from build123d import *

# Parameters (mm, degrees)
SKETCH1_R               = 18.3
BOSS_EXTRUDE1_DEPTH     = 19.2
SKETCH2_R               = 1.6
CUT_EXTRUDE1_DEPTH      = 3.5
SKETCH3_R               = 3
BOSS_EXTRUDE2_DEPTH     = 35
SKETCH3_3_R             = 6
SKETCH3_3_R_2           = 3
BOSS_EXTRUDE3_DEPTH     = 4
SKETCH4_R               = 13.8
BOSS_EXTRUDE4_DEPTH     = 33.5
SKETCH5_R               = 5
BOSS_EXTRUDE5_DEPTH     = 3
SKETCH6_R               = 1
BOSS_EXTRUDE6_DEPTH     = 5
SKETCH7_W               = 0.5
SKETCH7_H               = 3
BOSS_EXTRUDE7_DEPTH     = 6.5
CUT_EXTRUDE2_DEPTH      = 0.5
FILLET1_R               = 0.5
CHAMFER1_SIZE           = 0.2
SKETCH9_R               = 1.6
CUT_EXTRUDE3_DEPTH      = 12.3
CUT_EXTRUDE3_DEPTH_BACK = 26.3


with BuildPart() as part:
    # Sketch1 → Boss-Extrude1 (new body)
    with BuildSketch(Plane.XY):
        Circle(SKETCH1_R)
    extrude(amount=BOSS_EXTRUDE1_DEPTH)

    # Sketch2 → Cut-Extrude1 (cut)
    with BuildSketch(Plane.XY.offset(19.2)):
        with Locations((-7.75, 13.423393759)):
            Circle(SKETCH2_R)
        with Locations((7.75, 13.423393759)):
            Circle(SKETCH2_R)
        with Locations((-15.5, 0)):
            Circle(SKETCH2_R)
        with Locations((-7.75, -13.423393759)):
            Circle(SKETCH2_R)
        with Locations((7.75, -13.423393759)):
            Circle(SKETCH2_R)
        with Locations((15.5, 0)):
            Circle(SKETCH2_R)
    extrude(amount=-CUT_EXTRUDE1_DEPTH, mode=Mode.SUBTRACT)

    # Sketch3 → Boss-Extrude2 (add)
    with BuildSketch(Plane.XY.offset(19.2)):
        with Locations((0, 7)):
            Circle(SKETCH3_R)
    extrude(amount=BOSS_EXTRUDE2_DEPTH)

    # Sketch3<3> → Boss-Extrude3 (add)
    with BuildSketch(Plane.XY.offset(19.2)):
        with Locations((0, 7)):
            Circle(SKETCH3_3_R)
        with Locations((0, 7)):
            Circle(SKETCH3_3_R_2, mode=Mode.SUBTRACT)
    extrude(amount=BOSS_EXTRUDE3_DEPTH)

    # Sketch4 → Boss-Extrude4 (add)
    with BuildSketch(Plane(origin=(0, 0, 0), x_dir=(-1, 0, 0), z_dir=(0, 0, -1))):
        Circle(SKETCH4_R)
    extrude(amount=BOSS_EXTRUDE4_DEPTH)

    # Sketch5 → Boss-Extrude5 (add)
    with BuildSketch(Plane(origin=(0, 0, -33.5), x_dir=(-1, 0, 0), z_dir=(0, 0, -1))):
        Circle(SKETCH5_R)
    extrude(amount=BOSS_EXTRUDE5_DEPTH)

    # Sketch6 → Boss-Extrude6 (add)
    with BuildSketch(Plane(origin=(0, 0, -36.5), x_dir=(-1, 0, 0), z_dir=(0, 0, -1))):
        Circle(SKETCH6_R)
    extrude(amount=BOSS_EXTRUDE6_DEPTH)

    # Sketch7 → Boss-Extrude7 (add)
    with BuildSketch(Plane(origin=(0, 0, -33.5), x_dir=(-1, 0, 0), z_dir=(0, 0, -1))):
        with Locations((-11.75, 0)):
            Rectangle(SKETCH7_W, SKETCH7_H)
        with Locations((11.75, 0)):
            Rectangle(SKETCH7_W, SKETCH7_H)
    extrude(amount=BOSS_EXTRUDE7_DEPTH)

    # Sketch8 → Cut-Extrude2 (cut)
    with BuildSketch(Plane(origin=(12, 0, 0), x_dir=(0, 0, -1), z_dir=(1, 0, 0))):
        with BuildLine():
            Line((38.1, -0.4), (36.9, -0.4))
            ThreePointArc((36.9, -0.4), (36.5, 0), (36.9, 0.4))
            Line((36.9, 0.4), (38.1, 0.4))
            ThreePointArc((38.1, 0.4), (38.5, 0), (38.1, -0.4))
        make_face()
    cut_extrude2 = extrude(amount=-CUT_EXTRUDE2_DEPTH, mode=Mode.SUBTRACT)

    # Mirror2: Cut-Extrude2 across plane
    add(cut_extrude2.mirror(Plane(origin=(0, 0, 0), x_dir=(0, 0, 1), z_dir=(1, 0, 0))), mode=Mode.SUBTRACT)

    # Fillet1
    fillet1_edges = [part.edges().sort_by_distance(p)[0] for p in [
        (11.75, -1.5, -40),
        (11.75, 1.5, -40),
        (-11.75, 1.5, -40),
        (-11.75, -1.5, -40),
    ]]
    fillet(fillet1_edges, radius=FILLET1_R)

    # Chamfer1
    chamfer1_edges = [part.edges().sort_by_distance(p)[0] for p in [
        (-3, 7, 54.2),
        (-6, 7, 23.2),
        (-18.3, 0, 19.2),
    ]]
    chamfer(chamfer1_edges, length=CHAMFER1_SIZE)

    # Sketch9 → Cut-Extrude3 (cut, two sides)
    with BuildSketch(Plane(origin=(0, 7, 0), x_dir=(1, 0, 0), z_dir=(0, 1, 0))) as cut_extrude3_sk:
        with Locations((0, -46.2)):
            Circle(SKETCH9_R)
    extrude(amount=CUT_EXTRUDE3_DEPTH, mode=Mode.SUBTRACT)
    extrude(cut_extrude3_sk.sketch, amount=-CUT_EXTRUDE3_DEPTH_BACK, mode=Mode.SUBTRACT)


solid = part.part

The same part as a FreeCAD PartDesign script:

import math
import FreeCAD as App
import Part
import Sketcher
Q = App.Units.Quantity


def edges_at(feature, points):
    """Names of the edges that pass closest to the given points."""
    edges = feature.Shape.Edges
    near = lambda p: min(range(len(edges)), key=lambda i: edges[i].distToShape(Part.Vertex(*p))[0])
    return sorted({f"Edge{near(p) + 1}" for p in points})


def add_polygon(sketch, points):
    """Adds a closed chain of lines whose ends are joined by coincident constraints."""
    first, n = sketch.GeometryCount, len(points)
    for a, b in zip(points, points[1:] + points[:1]):
        sketch.addGeometry(Part.LineSegment(App.Vector(*a, 0), App.Vector(*b, 0)), False)
    for i in range(n):
        sketch.addConstraint(Sketcher.Constraint("Coincident", first + i, 2, first + (i + 1) % n, 1))

doc = App.newDocument("Part")
body = doc.addObject("PartDesign::Body", "Body")

# Sketch on XY plane
sketch1 = doc.addObject("Sketcher::SketchObject", "Sketch")
body.addObject(sketch1)
sketch1.AttachmentSupport = (doc.XY_Plane, [""])
sketch1.MapMode = "FlatFace"
sketch1.addGeometry(Part.Circle(App.Vector(0, 0, 0), App.Vector(0, 0, 1), 18), False)
sketch1.addConstraint([
    Sketcher.Constraint("Coincident", 0, 3, -1, 1),
    Sketcher.Constraint("Diameter", 0, Q("36.6 mm")),
])
pad1 = doc.addObject("PartDesign::Pad", "Pad")
body.addObject(pad1)
pad1.Profile = sketch1
pad1.Length = 19.2

# Sketch on XY plane
sketch2 = doc.addObject("Sketcher::SketchObject", "Sketch001")
body.addObject(sketch2)
sketch2.AttachmentSupport = (doc.XY_Plane, [""])
sketch2.MapMode = "FlatFace"
sketch2.AttachmentOffset = App.Placement(App.Vector(0, 0, 19.2), App.Rotation())
sketch2.addGeometry([
    Part.Circle(App.Vector(-7.8, 13.4, 0), App.Vector(0, 0, 1), 1.6),  # 0
    Part.Circle(App.Vector(7.8, 13.4, 0), App.Vector(0, 0, 1), 1.6),  # 1
    Part.Circle(App.Vector(-15.5, 0, 0), App.Vector(0, 0, 1), 1.6),  # 2
    Part.Circle(App.Vector(-7.8, -13.4, 0), App.Vector(0, 0, 1), 1.6),  # 3
    Part.Circle(App.Vector(7.8, -13.4, 0), App.Vector(0, 0, 1), 1.6),  # 4
    Part.Circle(App.Vector(15.5, 0, 0), App.Vector(0, 0, 1), 1.6),  # 5
], False)
sketch2.addConstraint([
    Sketcher.Constraint("Equal", 0, 1),
    Sketcher.Constraint("Equal", 1, 2),
    Sketcher.Constraint("Equal", 2, 3),
    Sketcher.Constraint("Equal", 3, 4),
    Sketcher.Constraint("Equal", 4, 5),
    Sketcher.Constraint("Symmetric", 1, 3, 3, 3, -1, 1),
    Sketcher.Constraint("Symmetric", 0, 3, 4, 3, -1, 1),
    Sketcher.Constraint("Symmetric", 2, 3, 5, 3, -1, 1),
    Sketcher.Constraint("Symmetric", 0, 3, 1, 3, -2),
    Sketcher.Constraint("PointOnObject", 2, 3, -1),
    Sketcher.Constraint("Diameter", 0, Q("3.2 mm")),
    Sketcher.Constraint("DistanceX", 2, 3, 5, 3, Q("31 mm")),
    Sketcher.Constraint("DistanceX", 0, 3, 1, 3, Q("15.5 mm")),
    Sketcher.Constraint("DistanceY", -1, 1, 0, 3, Q("13.423394 mm")),
])
pocket1 = doc.addObject("PartDesign::Pocket", "Pocket")
body.addObject(pocket1)
pocket1.Profile = sketch2
pocket1.Length = 3.5

# Sketch on XY plane
sketch3 = doc.addObject("Sketcher::SketchObject", "Sketch002")
body.addObject(sketch3)
sketch3.AttachmentSupport = (doc.XY_Plane, [""])
sketch3.MapMode = "FlatFace"
sketch3.AttachmentOffset = App.Placement(App.Vector(0, 0, 19.2), App.Rotation())
sketch3.addGeometry(Part.Circle(App.Vector(0, 7, 0), App.Vector(0, 0, 1), 3), False)
sketch3.addConstraint([
    Sketcher.Constraint("PointOnObject", 0, 3, -2),
    Sketcher.Constraint("Diameter", 0, Q("6 mm")),
    Sketcher.Constraint("DistanceY", -1, 1, 0, 3, Q("7 mm")),
])
pad2 = doc.addObject("PartDesign::Pad", "Pad001")
body.addObject(pad2)
pad2.Profile = sketch3
pad2.Length = 35

# Sketch on XY plane
sketch4 = doc.addObject("Sketcher::SketchObject", "Sketch003")
body.addObject(sketch4)
sketch4.AttachmentSupport = (doc.XY_Plane, [""])
sketch4.MapMode = "FlatFace"
sketch4.AttachmentOffset = App.Placement(App.Vector(0, 0, 19.2), App.Rotation())
sketch4.addGeometry([
    Part.Circle(App.Vector(0, 7, 0), App.Vector(0, 0, 1), 6),
    Part.Circle(App.Vector(0, 7, 0), App.Vector(0, 0, 1), 3),
], False)
sketch4.addConstraint([
    Sketcher.Constraint("Coincident", 1, 3, 0, 3),
    Sketcher.Constraint("PointOnObject", 0, 3, -2),
    Sketcher.Constraint("Diameter", 0, Q("12 mm")),
    Sketcher.Constraint("Diameter", 1, Q("6 mm")),
    Sketcher.Constraint("DistanceY", -1, 1, 0, 3, Q("7 mm")),
])
pad3 = doc.addObject("PartDesign::Pad", "Pad002")
body.addObject(pad3)
pad3.Profile = sketch4
pad3.Length = 4

# Sketch on XY plane
sketch5 = doc.addObject("Sketcher::SketchObject", "Sketch004")
body.addObject(sketch5)
sketch5.AttachmentSupport = (doc.XY_Plane, [""])
sketch5.MapMode = "FlatFace"
sketch5.addGeometry(Part.Circle(App.Vector(0, 0, 0), App.Vector(0, 0, 1), 14), False)
sketch5.addConstraint([
    Sketcher.Constraint("Coincident", 0, 3, -1, 1),
    Sketcher.Constraint("Diameter", 0, Q("27.6 mm")),
])
pad4 = doc.addObject("PartDesign::Pad", "Pad003")
body.addObject(pad4)
pad4.Profile = sketch5
pad4.Length = 33.5
pad4.Reversed = True

# Sketch on XY plane
sketch6 = doc.addObject("Sketcher::SketchObject", "Sketch005")
body.addObject(sketch6)
sketch6.AttachmentSupport = (doc.XY_Plane, [""])
sketch6.MapMode = "FlatFace"
sketch6.AttachmentOffset = App.Placement(App.Vector(0, 0, -33.5), App.Rotation())
sketch6.addGeometry(Part.Circle(App.Vector(0, 0, 0), App.Vector(0, 0, 1), 5), False)
sketch6.addConstraint([
    Sketcher.Constraint("Coincident", 0, 3, -1, 1),
    Sketcher.Constraint("Diameter", 0, Q("10 mm")),
])
pad5 = doc.addObject("PartDesign::Pad", "Pad004")
body.addObject(pad5)
pad5.Profile = sketch6
pad5.Length = 3
pad5.Reversed = True

# Sketch on XY plane
sketch7 = doc.addObject("Sketcher::SketchObject", "Sketch006")
body.addObject(sketch7)
sketch7.AttachmentSupport = (doc.XY_Plane, [""])
sketch7.MapMode = "FlatFace"
sketch7.AttachmentOffset = App.Placement(App.Vector(0, 0, -36.5), App.Rotation())
sketch7.addGeometry(Part.Circle(App.Vector(0, 0, 0), App.Vector(0, 0, 1), 1), False)
sketch7.addConstraint([
    Sketcher.Constraint("Coincident", 0, 3, -1, 1),
    Sketcher.Constraint("Diameter", 0, Q("2 mm")),
])
pad6 = doc.addObject("PartDesign::Pad", "Pad005")
body.addObject(pad6)
pad6.Profile = sketch7
pad6.Length = 5
pad6.Reversed = True

# Sketch on XY plane
sketch8 = doc.addObject("Sketcher::SketchObject", "Sketch007")
body.addObject(sketch8)
sketch8.AttachmentSupport = (doc.XY_Plane, [""])
sketch8.MapMode = "FlatFace"
sketch8.AttachmentOffset = App.Placement(App.Vector(0, 0, -33.5), App.Rotation())
add_polygon(sketch8, [(12, 1.5), (12, -1.5), (11.5, -1.5), (11.5, 1.5)])  # lines 0-3
add_polygon(sketch8, [(-11.5, 1.5), (-11.5, -1.5), (-12, -1.5), (-12, 1.5)])  # lines 4-7
sketch8.addConstraint([
    Sketcher.Constraint("Vertical", 0),
    Sketcher.Constraint("Horizontal", 1),
    Sketcher.Constraint("Vertical", 2),
    Sketcher.Constraint("Horizontal", 3),
    Sketcher.Constraint("Vertical", 4),
    Sketcher.Constraint("Horizontal", 5),
    Sketcher.Constraint("Vertical", 6),
    Sketcher.Constraint("Horizontal", 7),
    Sketcher.Constraint("Symmetric", 2, 2, 4, 2, -1, 1),
    Sketcher.Constraint("Symmetric", 0, 2, 6, 2, -1, 1),
    Sketcher.Constraint("Horizontal", 1, 2, 4, 2),
    Sketcher.Constraint("DistanceY", 0, 2, 0, 1, Q("3 mm")),
    Sketcher.Constraint("DistanceX", 1, 2, 1, 1, Q("0.5 mm")),
    Sketcher.Constraint("DistanceX", -1, 1, 0, 2, Q("12 mm")),
])
pad7 = doc.addObject("PartDesign::Pad", "Pad006")
body.addObject(pad7)
pad7.Profile = sketch8
pad7.Length = 6.5
pad7.Reversed = True

# Sketch on YZ plane
sketch9 = doc.addObject("Sketcher::SketchObject", "Sketch008")
body.addObject(sketch9)
sketch9.AttachmentSupport = (doc.YZ_Plane, [""])
sketch9.MapMode = "FlatFace"
sketch9.AttachmentOffset = App.Placement(App.Vector(0, 0, 12), App.Rotation())
sketch9.addGeometry([
    Part.LineSegment(App.Vector(-0.4, -36.9, 0), App.Vector(-0.4, -38.1, 0)),
    Part.ArcOfCircle(Part.Circle(App.Vector(0, -38.1, 0), App.Vector(0, 0, 1), 0.4), math.radians(180), math.radians(360)),
    Part.LineSegment(App.Vector(0.4, -38.1, 0), App.Vector(0.4, -36.9, 0)),
    Part.ArcOfCircle(Part.Circle(App.Vector(0, -36.9, 0), App.Vector(0, 0, 1), 0.4), math.radians(0), math.radians(180)),
], False)
sketch9.addConstraint([
    Sketcher.Constraint("Tangent", 0, 2, 1, 1),
    Sketcher.Constraint("Tangent", 1, 2, 2, 1),
    Sketcher.Constraint("Tangent", 2, 2, 3, 1),
    Sketcher.Constraint("Tangent", 3, 2, 0, 1),
    Sketcher.Constraint("Vertical", 0),
    Sketcher.Constraint("Vertical", 2),
    Sketcher.Constraint("PointOnObject", 1, 3, -2),
    Sketcher.Constraint("Radius", 1, Q("0.4 mm")),
    Sketcher.Constraint("DistanceY", 0, 2, 0, 1, Q("1.2 mm")),
    Sketcher.Constraint("DistanceY", 1, 3, -1, 1, Q("38.1 mm")),
])
pocket2 = doc.addObject("PartDesign::Pocket", "Pocket001")
body.addObject(pocket2)
pocket2.Profile = sketch9
pocket2.Length = 0.5
doc.recompute()

mirrored = doc.addObject("PartDesign::Mirrored", "Mirrored")
body.addObject(mirrored)
mirrored.Originals = [pocket2]
mirrored.MirrorPlane = (doc.YZ_Plane, [""])
body.Tip = mirrored
doc.recompute()

fillet = doc.addObject("PartDesign::Fillet", "Fillet")
body.addObject(fillet)
fillet.Base = (mirrored, edges_at(mirrored, [
    (11.75, -1.5, -40),
    (11.75, 1.5, -40),
    (-11.75, 1.5, -40),
    (-11.75, -1.5, -40),
]))
fillet.Radius = 0.5
doc.recompute()

chamfer = doc.addObject("PartDesign::Chamfer", "Chamfer")
body.addObject(chamfer)
chamfer.Base = (fillet, edges_at(fillet, [(-3, 7, 54.2), (-6, 7, 23.2), (-18.3, 0, 19.2)]))
chamfer.Size = 0.2

# Sketch on XZ plane
sketch10 = doc.addObject("Sketcher::SketchObject", "Sketch009")
body.addObject(sketch10)
sketch10.AttachmentSupport = (doc.XZ_Plane, [""])
sketch10.MapMode = "FlatFace"
sketch10.AttachmentOffset = App.Placement(App.Vector(0, 0, -7), App.Rotation())
sketch10.addGeometry(Part.Circle(App.Vector(0, 46.2, 0), App.Vector(0, 0, 1), 1.6), False)
sketch10.addConstraint([
    Sketcher.Constraint("PointOnObject", 0, 3, -2),
    Sketcher.Constraint("Diameter", 0, Q("3.2 mm")),
    Sketcher.Constraint("DistanceY", -1, 1, 0, 3, Q("46.2 mm")),
])
pocket3 = doc.addObject("PartDesign::Pocket", "Pocket002")
body.addObject(pocket3)
pocket3.Profile = sketch10
pocket3.Type = "ThroughAll"
pocket3.Midplane = True

doc.recompute()
